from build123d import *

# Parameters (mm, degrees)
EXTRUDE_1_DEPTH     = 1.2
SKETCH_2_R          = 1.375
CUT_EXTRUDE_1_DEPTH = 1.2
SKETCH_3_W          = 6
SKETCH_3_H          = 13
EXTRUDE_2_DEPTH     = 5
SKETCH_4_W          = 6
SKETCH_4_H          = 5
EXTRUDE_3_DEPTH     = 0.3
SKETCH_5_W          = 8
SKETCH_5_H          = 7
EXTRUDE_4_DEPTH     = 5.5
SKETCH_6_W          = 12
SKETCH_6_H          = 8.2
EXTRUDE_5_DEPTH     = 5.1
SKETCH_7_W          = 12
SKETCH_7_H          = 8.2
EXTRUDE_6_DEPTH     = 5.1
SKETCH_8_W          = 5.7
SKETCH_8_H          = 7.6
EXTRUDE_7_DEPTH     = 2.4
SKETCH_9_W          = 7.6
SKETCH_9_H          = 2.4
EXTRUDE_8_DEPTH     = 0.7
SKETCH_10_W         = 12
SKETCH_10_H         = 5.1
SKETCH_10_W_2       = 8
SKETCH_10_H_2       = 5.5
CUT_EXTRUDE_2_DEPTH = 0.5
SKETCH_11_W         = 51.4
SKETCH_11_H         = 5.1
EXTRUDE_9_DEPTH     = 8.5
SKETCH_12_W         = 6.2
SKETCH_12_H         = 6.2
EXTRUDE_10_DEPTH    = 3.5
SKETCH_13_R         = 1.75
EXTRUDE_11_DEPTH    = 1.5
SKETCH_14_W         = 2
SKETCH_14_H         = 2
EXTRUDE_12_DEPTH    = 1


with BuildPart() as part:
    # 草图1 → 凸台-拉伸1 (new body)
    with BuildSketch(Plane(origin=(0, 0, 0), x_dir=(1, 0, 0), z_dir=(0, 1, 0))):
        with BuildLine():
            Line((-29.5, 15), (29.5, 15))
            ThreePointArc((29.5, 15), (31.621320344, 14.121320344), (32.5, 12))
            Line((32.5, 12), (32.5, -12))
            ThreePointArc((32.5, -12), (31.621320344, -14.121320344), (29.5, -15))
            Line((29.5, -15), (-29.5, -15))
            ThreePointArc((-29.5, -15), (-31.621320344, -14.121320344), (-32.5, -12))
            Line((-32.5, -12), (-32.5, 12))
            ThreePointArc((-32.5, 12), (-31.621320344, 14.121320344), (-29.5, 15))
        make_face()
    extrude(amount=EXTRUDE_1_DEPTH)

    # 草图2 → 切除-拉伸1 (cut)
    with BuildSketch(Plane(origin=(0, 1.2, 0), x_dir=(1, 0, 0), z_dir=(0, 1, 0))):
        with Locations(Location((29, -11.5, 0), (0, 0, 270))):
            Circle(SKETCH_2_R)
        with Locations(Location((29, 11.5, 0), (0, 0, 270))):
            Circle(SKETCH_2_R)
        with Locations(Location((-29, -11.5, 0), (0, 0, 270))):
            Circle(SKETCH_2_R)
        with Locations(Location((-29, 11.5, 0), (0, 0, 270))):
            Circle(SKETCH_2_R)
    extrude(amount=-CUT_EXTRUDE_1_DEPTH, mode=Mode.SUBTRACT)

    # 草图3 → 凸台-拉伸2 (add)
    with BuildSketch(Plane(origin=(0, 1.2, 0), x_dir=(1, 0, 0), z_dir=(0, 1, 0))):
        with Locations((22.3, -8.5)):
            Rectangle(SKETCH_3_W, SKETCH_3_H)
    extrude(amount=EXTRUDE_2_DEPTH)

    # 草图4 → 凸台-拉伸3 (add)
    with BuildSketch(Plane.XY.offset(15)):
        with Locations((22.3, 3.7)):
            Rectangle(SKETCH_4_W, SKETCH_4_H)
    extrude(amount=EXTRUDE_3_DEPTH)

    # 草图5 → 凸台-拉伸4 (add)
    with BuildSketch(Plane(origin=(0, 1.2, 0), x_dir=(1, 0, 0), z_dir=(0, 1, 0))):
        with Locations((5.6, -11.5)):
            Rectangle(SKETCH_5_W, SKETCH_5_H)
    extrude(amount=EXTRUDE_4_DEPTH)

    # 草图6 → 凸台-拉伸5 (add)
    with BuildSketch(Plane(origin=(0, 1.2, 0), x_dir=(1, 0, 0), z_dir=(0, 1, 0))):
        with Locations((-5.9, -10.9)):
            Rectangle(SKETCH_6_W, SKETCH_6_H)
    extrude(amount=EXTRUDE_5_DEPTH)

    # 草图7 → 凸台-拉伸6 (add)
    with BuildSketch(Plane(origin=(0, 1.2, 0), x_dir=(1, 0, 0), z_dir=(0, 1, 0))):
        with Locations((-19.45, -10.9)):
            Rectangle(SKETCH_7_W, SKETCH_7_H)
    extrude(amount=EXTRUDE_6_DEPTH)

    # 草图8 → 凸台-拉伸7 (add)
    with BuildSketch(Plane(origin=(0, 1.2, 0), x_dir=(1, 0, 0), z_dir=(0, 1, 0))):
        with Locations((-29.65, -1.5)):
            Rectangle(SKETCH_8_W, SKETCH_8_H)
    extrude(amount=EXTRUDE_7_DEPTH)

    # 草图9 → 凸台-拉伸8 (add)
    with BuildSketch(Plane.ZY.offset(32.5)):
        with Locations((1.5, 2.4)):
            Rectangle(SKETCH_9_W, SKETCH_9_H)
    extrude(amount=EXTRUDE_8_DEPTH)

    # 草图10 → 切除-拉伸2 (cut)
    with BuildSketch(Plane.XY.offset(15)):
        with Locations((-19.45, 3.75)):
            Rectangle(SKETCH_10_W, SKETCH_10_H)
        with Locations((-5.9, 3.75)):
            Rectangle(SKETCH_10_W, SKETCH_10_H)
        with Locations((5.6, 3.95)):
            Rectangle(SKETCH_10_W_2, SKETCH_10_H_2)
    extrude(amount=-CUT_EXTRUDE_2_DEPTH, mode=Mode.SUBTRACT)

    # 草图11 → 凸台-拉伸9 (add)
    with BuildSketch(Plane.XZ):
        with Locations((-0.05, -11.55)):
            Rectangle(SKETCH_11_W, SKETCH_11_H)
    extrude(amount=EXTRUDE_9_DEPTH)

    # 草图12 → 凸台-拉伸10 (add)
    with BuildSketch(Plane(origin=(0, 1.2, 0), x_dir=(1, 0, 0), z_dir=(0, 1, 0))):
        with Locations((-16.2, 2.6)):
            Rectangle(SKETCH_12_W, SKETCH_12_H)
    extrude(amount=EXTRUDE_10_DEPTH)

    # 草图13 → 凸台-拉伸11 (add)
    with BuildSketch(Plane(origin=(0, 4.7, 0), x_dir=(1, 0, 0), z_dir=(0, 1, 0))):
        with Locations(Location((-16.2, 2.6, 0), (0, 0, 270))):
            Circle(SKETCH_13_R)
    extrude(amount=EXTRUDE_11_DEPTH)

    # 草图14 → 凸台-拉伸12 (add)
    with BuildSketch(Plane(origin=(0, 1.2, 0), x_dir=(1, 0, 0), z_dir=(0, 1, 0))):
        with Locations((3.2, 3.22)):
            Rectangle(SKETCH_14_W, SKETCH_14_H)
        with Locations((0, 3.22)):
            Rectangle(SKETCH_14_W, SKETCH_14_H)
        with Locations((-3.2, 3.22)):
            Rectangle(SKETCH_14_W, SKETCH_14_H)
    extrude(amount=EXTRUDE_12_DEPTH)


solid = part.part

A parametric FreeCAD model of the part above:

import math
import FreeCAD as App
import Part
import Sketcher
from FreeCAD import Vector
Q = App.Units.Quantity


def add_polygon(sketch, points):
    """Adds a closed chain of lines whose ends are joined by coincident constraints."""
    first, n = sketch.GeometryCount, len(points)
    for a, b in zip(points, points[1:] + points[:1]):
        sketch.addGeometry(Part.LineSegment(App.Vector(*a, 0), App.Vector(*b, 0)), False)
    for i in range(n):
        sketch.addConstraint(Sketcher.Constraint("Coincident", first + i, 2, first + (i + 1) % n, 1))

doc = App.newDocument("Part")
body = doc.addObject("PartDesign::Body", "Body")

# Sketch on XZ plane
sketch1 = doc.addObject("Sketcher::SketchObject", "Sketch")
body.addObject(sketch1)
sketch1.AttachmentSupport = (doc.XZ_Plane, [""])
sketch1.MapMode = "FlatFace"
sketch1.addGeometry(Part.LineSegment(Vector(29.5, -15, 0), Vector(-29.5, -15, 0)), False)
sketch1.addGeometry(Part.ArcOfCircle(Part.Circle(Vector(-29.5, -12, 0), Vector(0, 0, 1), 3), math.radians(180), math.radians(270)), False)
sketch1.addGeometry(Part.LineSegment(Vector(-32.5, -12, 0), Vector(-32.5, 12, 0)), False)
sketch1.addGeometry(Part.ArcOfCircle(Part.Circle(Vector(-29.5, 12, 0), Vector(0, 0, 1), 3), math.radians(90), math.radians(180)), False)
sketch1.addGeometry(Part.LineSegment(Vector(-29.5, 15, 0), Vector(29.5, 15, 0)), False)
sketch1.addGeometry(Part.ArcOfCircle(Part.Circle(Vector(29.5, 12, 0), Vector(0, 0, 1), 3), math.radians(0), math.radians(90)), False)
sketch1.addGeometry(Part.LineSegment(Vector(32.5, 12, 0), Vector(32.5, -12, 0)), False)
sketch1.addGeometry(Part.ArcOfCircle(Part.Circle(Vector(29.5, -12, 0), Vector(0, 0, 1), 3), math.radians(-90), math.radians(0)), False)
sketch1.addConstraint(Sketcher.Constraint("Tangent", 0, 2, 1, 2))
sketch1.addConstraint(Sketcher.Constraint("Tangent", 1, 1, 2, 1))
sketch1.addConstraint(Sketcher.Constraint("Tangent", 2, 2, 3, 2))
sketch1.addConstraint(Sketcher.Constraint("Tangent", 3, 1, 4, 1))
sketch1.addConstraint(Sketcher.Constraint("Tangent", 4, 2, 5, 2))
sketch1.addConstraint(Sketcher.Constraint("Tangent", 5, 1, 6, 1))
sketch1.addConstraint(Sketcher.Constraint("Tangent", 6, 2, 7, 2))
sketch1.addConstraint(Sketcher.Constraint("Tangent", 7, 1, 0, 1))
sketch1.addConstraint(Sketcher.Constraint("Horizontal", 0))
sketch1.addConstraint(Sketcher.Constraint("Vertical", 2))
sketch1.addConstraint(Sketcher.Constraint("Horizontal", 4))
sketch1.addConstraint(Sketcher.Constraint("Vertical", 6))
sketch1.addConstraint(Sketcher.Constraint("Equal", 1, 3))
sketch1.addConstraint(Sketcher.Constraint("Equal", 3, 5))
sketch1.addConstraint(Sketcher.Constraint("Equal", 5, 7))
sketch1.addConstraint(Sketcher.Constraint("Symmetric", 1, 3, 5, 3, -1, 1))
sketch1.addConstraint(Sketcher.Constraint("Radius", 1, Q("3 mm")))
sketch1.addConstraint(Sketcher.Constraint("DistanceX", 0, 2, 0, 1, Q("59 mm")))
sketch1.addConstraint(Sketcher.Constraint("DistanceY", 2, 1, 2, 2, Q("24 mm")))
pad1 = doc.addObject("PartDesign::Pad", "Pad")
body.addObject(pad1)
pad1.Profile = sketch1
pad1.Length = 1.2
pad1.Reversed = True

# Sketch on XZ plane
sketch2 = doc.addObject("Sketcher::SketchObject", "Sketch001")
body.addObject(sketch2)
sketch2.AttachmentSupport = (doc.XZ_Plane, [""])
sketch2.MapMode = "FlatFace"
sketch2.AttachmentOffset = App.Placement(Vector(0, 0, -1.2), App.Rotation())
sketch2.addGeometry(Part.Circle(Vector(29, 11.5, 0), Vector(0, 0, 1), 1.4), False)
sketch2.addGeometry(Part.Circle(Vector(29, -11.5, 0), Vector(0, 0, 1), 1.4), False)
sketch2.addGeometry(Part.Circle(Vector(-29, 11.5, 0), Vector(0, 0, 1), 1.4), False)
sketch2.addGeometry(Part.Circle(Vector(-29, -11.5, 0), Vector(0, 0, 1), 1.4), False)
sketch2.addConstraint(Sketcher.Constraint("Equal", 0, 1))
sketch2.addConstraint(Sketcher.Constraint("Equal", 1, 2))
sketch2.addConstraint(Sketcher.Constraint("Equal", 2, 3))
sketch2.addConstraint(Sketcher.Constraint("Symmetric", 1, 3, 2, 3, -1, 1))
sketch2.addConstraint(Sketcher.Constraint("Symmetric", 0, 3, 3, 3, -1, 1))
sketch2.addConstraint(Sketcher.Constraint("Symmetric", 0, 3, 2, 3, -2))
sketch2.addConstraint(Sketcher.Constraint("Diameter", 0, Q("2.75 mm")))
sketch2.addConstraint(Sketcher.Constraint("DistanceX", -1, 1, 0, 3, Q("29 mm")))
sketch2.addConstraint(Sketcher.Constraint("DistanceY", 1, 3, 0, 3, Q("23 mm")))
pocket1 = doc.addObject("PartDesign::Pocket", "Pocket")
body.addObject(pocket1)
pocket1.Profile = sketch2
pocket1.Length = 1.2
pocket1.Reversed = True

# Sketch on XZ plane
sketch3 = doc.addObject("Sketcher::SketchObject", "Sketch002")
body.addObject(sketch3)
sketch3.AttachmentSupport = (doc.XZ_Plane, [""])
sketch3.MapMode = "FlatFace"
sketch3.AttachmentOffset = App.Placement(Vector(0, 0, -1.2), App.Rotation())
add_polygon(sketch3, [(19, 2), (19, 15), (25, 15), (25, 2)])  # lines 0-3
sketch3.addConstraint(Sketcher.Constraint("Vertical", 0))
sketch3.addConstraint(Sketcher.Constraint("Horizontal", 1))
sketch3.addConstraint(Sketcher.Constraint("Vertical", 2))
sketch3.addConstraint(Sketcher.Constraint("Horizontal", 3))
sketch3.addConstraint(Sketcher.Constraint("DistanceX", 1, 1, 1, 2, Q("6 mm")))
sketch3.addConstraint(Sketcher.Constraint("DistanceY", 0, 1, 0, 2, Q("13 mm")))
sketch3.addConstraint(Sketcher.Constraint("DistanceY", -1, 1, 0, 2, Q("15 mm")))
sketch3.addConstraint(Sketcher.Constraint("DistanceX", -1, 1, 0, 2, Q("19.3 mm")))
pad2 = doc.addObject("PartDesign::Pad", "Pad001")
body.addObject(pad2)
pad2.Profile = sketch3
pad2.Length = 5
pad2.Reversed = True

# Sketch on XY plane
sketch4 = doc.addObject("Sketcher::SketchObject", "Sketch003")
body.addObject(sketch4)
sketch4.AttachmentSupport = (doc.XY_Plane, [""])
sketch4.MapMode = "FlatFace"
sketch4.AttachmentOffset = App.Placement(Vector(0, 0, 15), App.Rotation())
add_polygon(sketch4, [(19, 6), (19, 1), (25, 1), (25, 6)])  # lines 0-3
sketch4.addConstraint(Sketcher.Constraint("Vertical", 0))
sketch4.addConstraint(Sketcher.Constraint("Horizontal", 1))
sketch4.addConstraint(Sketcher.Constraint("Vertical", 2))
sketch4.addConstraint(Sketcher.Constraint("Horizontal", 3))
sketch4.addConstraint(Sketcher.Constraint("DistanceX", 1, 1, 1, 2, Q("6 mm")))
sketch4.addConstraint(Sketcher.Constraint("DistanceY", 0, 2, 0, 1, Q("5 mm")))
sketch4.addConstraint(Sketcher.Constraint("DistanceX", -1, 1, 0, 2, Q("19.3 mm")))
sketch4.addConstraint(Sketcher.Constraint("DistanceY", -1, 1, 0, 2, Q("1.2 mm")))
pad3 = doc.addObject("PartDesign::Pad", "Pad002")
body.addObject(pad3)
pad3.Profile = sketch4
pad3.Length = 0.3

# Sketch on XZ plane
sketch5 = doc.addObject("Sketcher::SketchObject", "Sketch004")
body.addObject(sketch5)
sketch5.AttachmentSupport = (doc.XZ_Plane, [""])
sketch5.MapMode = "FlatFace"
sketch5.AttachmentOffset = App.Placement(Vector(0, 0, -1.2), App.Rotation())
add_polygon(sketch5, [(2, 8), (2, 15), (10, 15), (10, 8)])  # lines 0-3
sketch5.addConstraint(Sketcher.Constraint("Vertical", 0))
sketch5.addConstraint(Sketcher.Constraint("Horizontal", 1))
sketch5.addConstraint(Sketcher.Constraint("Vertical", 2))
sketch5.addConstraint(Sketcher.Constraint("Horizontal", 3))
sketch5.addConstraint(Sketcher.Constraint("DistanceX", 1, 1, 1, 2, Q("8 mm")))
sketch5.addConstraint(Sketcher.Constraint("DistanceY", 0, 1, 0, 2, Q("7 mm")))
sketch5.addConstraint(Sketcher.Constraint("DistanceY", -1, 1, 0, 2, Q("15 mm")))
sketch5.addConstraint(Sketcher.Constraint("DistanceX", -1, 1, 0, 2, Q("1.6 mm")))
pad4 = doc.addObject("PartDesign::Pad", "Pad003")
body.addObject(pad4)
pad4.Profile = sketch5
pad4.Length = 5.5
pad4.Reversed = True

# Sketch on XZ plane
sketch6 = doc.addObject("Sketcher::SketchObject", "Sketch005")
body.addObject(sketch6)
sketch6.AttachmentSupport = (doc.XZ_Plane, [""])
sketch6.MapMode = "FlatFace"
sketch6.AttachmentOffset = App.Placement(Vector(0, 0, -1.2), App.Rotation())
add_polygon(sketch6, [(-12, 7), (-12, 15), (0, 15), (0, 7)])  # lines 0-3
sketch6.addConstraint(Sketcher.Constraint("Vertical", 0))
sketch6.addConstraint(Sketcher.Constraint("Horizontal", 1))
sketch6.addConstraint(Sketcher.Constraint("Vertical", 2))
sketch6.addConstraint(Sketcher.Constraint("Horizontal", 3))
sketch6.addConstraint(Sketcher.Constraint("DistanceX", 1, 1, 1, 2, Q("12 mm")))
sketch6.addConstraint(Sketcher.Constraint("DistanceY", 0, 1, 0, 2, Q("8.2 mm")))
sketch6.addConstraint(Sketcher.Constraint("DistanceY", -1, 1, 0, 2, Q("15 mm")))
sketch6.addConstraint(Sketcher.Constraint("DistanceX", 0, 2, -1, 1, Q("11.9 mm")))
pad5 = doc.addObject("PartDesign::Pad", "Pad004")
body.addObject(pad5)
pad5.Profile = sketch6
pad5.Length = 5.1
pad5.Reversed = True

# Sketch on XZ plane
sketch7 = doc.addObject("Sketcher::SketchObject", "Sketch006")
body.addObject(sketch7)
sketch7.AttachmentSupport = (doc.XZ_Plane, [""])
sketch7.MapMode = "FlatFace"
sketch7.AttachmentOffset = App.Placement(Vector(0, 0, -1.2), App.Rotation())
add_polygon(sketch7, [(-25, 7), (-25, 15), (-13, 15), (-13, 7)])  # lines 0-3
sketch7.addConstraint(Sketcher.Constraint("Vertical", 0))
sketch7.addConstraint(Sketcher.Constraint("Horizontal", 1))
sketch7.addConstraint(Sketcher.Constraint("Vertical", 2))
sketch7.addConstraint(Sketcher.Constraint("Horizontal", 3))
sketch7.addConstraint(Sketcher.Constraint("DistanceX", 1, 1, 1, 2, Q("12 mm")))
sketch7.addConstraint(Sketcher.Constraint("DistanceY", 0, 1, 0, 2, Q("8.2 mm")))
sketch7.addConstraint(Sketcher.Constraint("DistanceY", -1, 1, 0, 2, Q("15 mm")))
sketch7.addConstraint(Sketcher.Constraint("DistanceX", 0, 2, -1, 1, Q("25.45 mm")))
pad6 = doc.addObject("PartDesign::Pad", "Pad005")
body.addObject(pad6)
pad6.Profile = sketch7
pad6.Length = 5.1
pad6.Reversed = True

# Sketch on XZ plane
sketch8 = doc.addObject("Sketcher::SketchObject", "Sketch007")
body.addObject(sketch8)
sketch8.AttachmentSupport = (doc.XZ_Plane, [""])
sketch8.MapMode = "FlatFace"
sketch8.AttachmentOffset = App.Placement(Vector(0, 0, -1.2), App.Rotation())
add_polygon(sketch8, [(-32, -2), (-32, 5), (-27, 5), (-27, -2)])  # lines 0-3
sketch8.addConstraint(Sketcher.Constraint("Vertical", 0))
sketch8.addConstraint(Sketcher.Constraint("Horizontal", 1))
sketch8.addConstraint(Sketcher.Constraint("Vertical", 2))
sketch8.addConstraint(Sketcher.Constraint("Horizontal", 3))
sketch8.addConstraint(Sketcher.Constraint("DistanceX", 1, 1, 1, 2, Q("5.7 mm")))
sketch8.addConstraint(Sketcher.Constraint("DistanceY", 0, 1, 0, 2, Q("7.6 mm")))
sketch8.addConstraint(Sketcher.Constraint("DistanceX", 0, 2, -1, 1, Q("32.5 mm")))
sketch8.addConstraint(Sketcher.Constraint("DistanceY", -1, 1, 0, 2, Q("5.3 mm")))
pad7 = doc.addObject("PartDesign::Pad", "Pad006")
body.addObject(pad7)
pad7.Profile = sketch8
pad7.Length = 2.4
pad7.Reversed = True

# Sketch on YZ plane
sketch9 = doc.addObject("Sketcher::SketchObject", "Sketch008")
body.addObject(sketch9)
sketch9.AttachmentSupport = (doc.YZ_Plane, [""])
sketch9.MapMode = "FlatFace"
sketch9.AttachmentOffset = App.Placement(Vector(0, 0, -32.5), App.Rotation())
add_polygon(sketch9, [(3.6, -2.3), (1.2, -2.3), (1.2, 5.3), (3.6, 5.3)])  # lines 0-3
sketch9.addConstraint(Sketcher.Constraint("Horizontal", 0))
sketch9.addConstraint(Sketcher.Constraint("Vertical", 1))
sketch9.addConstraint(Sketcher.Constraint("Horizontal", 2))
sketch9.addConstraint(Sketcher.Constraint("Vertical", 3))
sketch9.addConstraint(Sketcher.Constraint("DistanceX", 0, 2, 0, 1, Q("2.4 mm")))
sketch9.addConstraint(Sketcher.Constraint("DistanceY", 1, 1, 1, 2, Q("7.6 mm")))
sketch9.addConstraint(Sketcher.Constraint("DistanceX", -1, 1, 0, 2, Q("1.2 mm")))
sketch9.addConstraint(Sketcher.Constraint("DistanceY", 0, 2, -1, 1, Q("2.3 mm")))
pad8 = doc.addObject("PartDesign::Pad", "Pad007")
body.addObject(pad8)
pad8.Profile = sketch9
pad8.Length = 0.7
pad8.Reversed = True

# Sketch on XY plane
sketch10 = doc.addObject("Sketcher::SketchObject", "Sketch009")
body.addObject(sketch10)
sketch10.AttachmentSupport = (doc.XY_Plane, [""])
sketch10.MapMode = "FlatFace"
sketch10.AttachmentOffset = App.Placement(Vector(0, 0, 15), App.Rotation())
add_polygon(sketch10, [(-25, 6), (-25, 1), (-13, 1), (-13, 6)])  # lines 0-3
add_polygon(sketch10, [(-12, 6), (-12, 1), (0, 1), (0, 6)])  # lines 4-7
add_polygon(sketch10, [(2, 7), (2, 1), (10, 1), (10, 7)])  # lines 8-11
sketch10.addConstraint(Sketcher.Constraint("Vertical", 0))
sketch10.addConstraint(Sketcher.Constraint("Horizontal", 1))
sketch10.addConstraint(Sketcher.Constraint("Vertical", 2))
sketch10.addConstraint(Sketcher.Constraint("Horizontal", 3))
sketch10.addConstraint(Sketcher.Constraint("Vertical", 4))
sketch10.addConstraint(Sketcher.Constraint("Horizontal", 5))
sketch10.addConstraint(Sketcher.Constraint("Vertical", 6))
sketch10.addConstraint(Sketcher.Constraint("Horizontal", 7))
sketch10.addConstraint(Sketcher.Constraint("Vertical", 8))
sketch10.addConstraint(Sketcher.Constraint("Horizontal", 9))
sketch10.addConstraint(Sketcher.Constraint("Vertical", 10))
sketch10.addConstraint(Sketcher.Constraint("Horizontal", 11))
sketch10.addConstraint(Sketcher.Constraint("Horizontal", 1, 2, 4, 2))
sketch10.addConstraint(Sketcher.Constraint("Horizontal", 3, 2, 6, 2))
sketch10.addConstraint(Sketcher.Constraint("Horizontal", 5, 2, 8, 2))
sketch10.addConstraint(Sketcher.Constraint("Equal", 3, 5))
sketch10.addConstraint(Sketcher.Constraint("DistanceX", 1, 1, 1, 2, Q("12 mm")))
sketch10.addConstraint(Sketcher.Constraint("DistanceX", 9, 1, 9, 2, Q("8 mm")))
sketch10.addConstraint(Sketcher.Constraint("DistanceY", 0, 2, 0, 1, Q("5.1 mm")))
sketch10.addConstraint(Sketcher.Constraint("DistanceY", 8, 2, 8, 1, Q("5.5 mm")))
sketch10.addConstraint(Sketcher.Constraint("DistanceY", -1, 1, 0, 2, Q("1.2 mm")))
sketch10.addConstraint(Sketcher.Constraint("DistanceX", 4, 2, -1, 1, Q("11.9 mm")))
sketch10.addConstraint(Sketcher.Constraint("DistanceX", -1, 1, 8, 2, Q("1.6 mm")))
sketch10.addConstraint(Sketcher.Constraint("DistanceX", 0, 2, -1, 1, Q("25.45 mm")))
pocket2 = doc.addObject("PartDesign::Pocket", "Pocket001")
body.addObject(pocket2)
pocket2.Profile = sketch10
pocket2.Length = 0.5

# Sketch on XZ plane
sketch11 = doc.addObject("Sketcher::SketchObject", "Sketch010")
body.addObject(sketch11)
sketch11.AttachmentSupport = (doc.XZ_Plane, [""])
sketch11.MapMode = "FlatFace"
add_polygon(sketch11, [(-26, -9), (-26, -14), (26, -14), (26, -9)])  # lines 0-3
sketch11.addConstraint(Sketcher.Constraint("Vertical", 0))
sketch11.addConstraint(Sketcher.Constraint("Horizontal", 1))
sketch11.addConstraint(Sketcher.Constraint("Vertical", 2))
sketch11.addConstraint(Sketcher.Constraint("Horizontal", 3))
sketch11.addConstraint(Sketcher.Constraint("DistanceX", 1, 1, 1, 2, Q("51.4 mm")))
sketch11.addConstraint(Sketcher.Constraint("DistanceY", 0, 2, 0, 1, Q("5.1 mm")))
sketch11.addConstraint(Sketcher.Constraint("DistanceY", 2, 2, -1, 1, Q("9 mm")))
sketch11.addConstraint(Sketcher.Constraint("DistanceX", 0, 2, -1, 1, Q("25.75 mm")))
pad9 = doc.addObject("PartDesign::Pad", "Pad008")
body.addObject(pad9)
pad9.Profile = sketch11
pad9.Length = 8.5

# Sketch on XZ plane
sketch12 = doc.addObject("Sketcher::SketchObject", "Sketch011")
body.addObject(sketch12)
sketch12.AttachmentSupport = (doc.XZ_Plane, [""])
sketch12.MapMode = "FlatFace"
sketch12.AttachmentOffset = App.Placement(Vector(0, 0, -1.2), App.Rotation())
add_polygon(sketch12, [(-19, -6), (-19, 0), (-13, 0), (-13, -6)])  # lines 0-3
sketch12.addConstraint(Sketcher.Constraint("Vertical", 0))
sketch12.addConstraint(Sketcher.Constraint("Horizontal", 1))
sketch12.addConstraint(Sketcher.Constraint("Vertical", 2))
sketch12.addConstraint(Sketcher.Constraint("Horizontal", 3))
sketch12.addConstraint(Sketcher.Constraint("Equal", 3, 0))
sketch12.addConstraint(Sketcher.Constraint("DistanceX", 1, 1, 1, 2, Q("6.2 mm")))
sketch12.addConstraint(Sketcher.Constraint("DistanceX", 0, 2, -1, 1, Q("19.3 mm")))
sketch12.addConstraint(Sketcher.Constraint("DistanceY", -1, 1, 0, 2, Q("0.5 mm")))
pad10 = doc.addObject("PartDesign::Pad", "Pad009")
body.addObject(pad10)
pad10.Profile = sketch12
pad10.Length = 3.5
pad10.Reversed = True

# Sketch on XZ plane
sketch13 = doc.addObject("Sketcher::SketchObject", "Sketch012")
body.addObject(sketch13)
sketch13.AttachmentSupport = (doc.XZ_Plane, [""])
sketch13.MapMode = "FlatFace"
sketch13.AttachmentOffset = App.Placement(Vector(0, 0, -4.7), App.Rotation())
sketch13.addGeometry(Part.Circle(Vector(-16.2, -2.6, 0), Vector(0, 0, 1), 1.8), False)
sketch13.addConstraint(Sketcher.Constraint("Diameter", 0, Q("3.5 mm")))
sketch13.addConstraint(Sketcher.Constraint("DistanceX", 0, 3, -1, 1, Q("16.2 mm")))
sketch13.addConstraint(Sketcher.Constraint("DistanceY", 0, 3, -1, 1, Q("2.6 mm")))
pad11 = doc.addObject("PartDesign::Pad", "Pad010")
body.addObject(pad11)
pad11.Profile = sketch13
pad11.Length = 1.5
pad11.Reversed = True

# Sketch on XZ plane
sketch14 = doc.addObject("Sketcher::SketchObject", "Sketch013")
body.addObject(sketch14)
sketch14.AttachmentSupport = (doc.XZ_Plane, [""])
sketch14.MapMode = "FlatFace"
sketch14.AttachmentOffset = App.Placement(Vector(0, 0, -1.2), App.Rotation())
add_polygon(sketch14, [(2.2, -4.2), (2.2, -2.2), (4.2, -2.2), (4.2, -4.2)])  # lines 0-3
add_polygon(sketch14, [(-1, -4.2), (-1, -2.2), (1, -2.2), (1, -4.2)])  # lines 4-7
add_polygon(sketch14, [(-4.2, -4.2), (-4.2, -2.2), (-2.2, -2.2), (-2.2, -4.2)])  # lines 8-11
sketch14.addConstraint(Sketcher.Constraint("Vertical", 0))
sketch14.addConstraint(Sketcher.Constraint("Horizontal", 1))
sketch14.addConstraint(Sketcher.Constraint("Vertical", 2))
sketch14.addConstraint(Sketcher.Constraint("Horizontal", 3))
sketch14.addConstraint(Sketcher.Constraint("Vertical", 4))
sketch14.addConstraint(Sketcher.Constraint("Horizontal", 5))
sketch14.addConstraint(Sketcher.Constraint("Vertical", 6))
sketch14.addConstraint(Sketcher.Constraint("Horizontal", 7))
sketch14.addConstraint(Sketcher.Constraint("Vertical", 8))
sketch14.addConstraint(Sketcher.Constraint("Horizontal", 9))
sketch14.addConstraint(Sketcher.Constraint("Vertical", 10))
sketch14.addConstraint(Sketcher.Constraint("Horizontal", 11))
sketch14.addConstraint(Sketcher.Constraint("Symmetric", 1, 2, 8, 2, -2))
sketch14.addConstraint(Sketcher.Constraint("Symmetric", 3, 2, 10, 2, -2))
sketch14.addConstraint(Sketcher.Constraint("Horizontal", 1, 2, 4, 2))
sketch14.addConstraint(Sketcher.Constraint("Horizontal", 3, 2, 6, 2))
sketch14.addConstraint(Sketcher.Constraint("Equal", 3, 5))
sketch14.addConstraint(Sketcher.Constraint("Equal", 11, 0))
sketch14.addConstraint(Sketcher.Constraint("DistanceX", 1, 1, 1, 2, Q("2 mm")))
sketch14.addConstraint(Sketcher.Constraint("DistanceX", 4, 2, -1, 1, Q("1 mm")))
sketch14.addConstraint(Sketcher.Constraint("DistanceX", -1, 1, 0, 2, Q("2.2 mm")))
sketch14.addConstraint(Sketcher.Constraint("DistanceY", 0, 2, -1, 1, Q("2.22 mm")))
pad12 = doc.addObject("PartDesign::Pad", "Pad011")
body.addObject(pad12)
pad12.Profile = sketch14
pad12.Length = 1
pad12.Reversed = True

doc.recompute()
